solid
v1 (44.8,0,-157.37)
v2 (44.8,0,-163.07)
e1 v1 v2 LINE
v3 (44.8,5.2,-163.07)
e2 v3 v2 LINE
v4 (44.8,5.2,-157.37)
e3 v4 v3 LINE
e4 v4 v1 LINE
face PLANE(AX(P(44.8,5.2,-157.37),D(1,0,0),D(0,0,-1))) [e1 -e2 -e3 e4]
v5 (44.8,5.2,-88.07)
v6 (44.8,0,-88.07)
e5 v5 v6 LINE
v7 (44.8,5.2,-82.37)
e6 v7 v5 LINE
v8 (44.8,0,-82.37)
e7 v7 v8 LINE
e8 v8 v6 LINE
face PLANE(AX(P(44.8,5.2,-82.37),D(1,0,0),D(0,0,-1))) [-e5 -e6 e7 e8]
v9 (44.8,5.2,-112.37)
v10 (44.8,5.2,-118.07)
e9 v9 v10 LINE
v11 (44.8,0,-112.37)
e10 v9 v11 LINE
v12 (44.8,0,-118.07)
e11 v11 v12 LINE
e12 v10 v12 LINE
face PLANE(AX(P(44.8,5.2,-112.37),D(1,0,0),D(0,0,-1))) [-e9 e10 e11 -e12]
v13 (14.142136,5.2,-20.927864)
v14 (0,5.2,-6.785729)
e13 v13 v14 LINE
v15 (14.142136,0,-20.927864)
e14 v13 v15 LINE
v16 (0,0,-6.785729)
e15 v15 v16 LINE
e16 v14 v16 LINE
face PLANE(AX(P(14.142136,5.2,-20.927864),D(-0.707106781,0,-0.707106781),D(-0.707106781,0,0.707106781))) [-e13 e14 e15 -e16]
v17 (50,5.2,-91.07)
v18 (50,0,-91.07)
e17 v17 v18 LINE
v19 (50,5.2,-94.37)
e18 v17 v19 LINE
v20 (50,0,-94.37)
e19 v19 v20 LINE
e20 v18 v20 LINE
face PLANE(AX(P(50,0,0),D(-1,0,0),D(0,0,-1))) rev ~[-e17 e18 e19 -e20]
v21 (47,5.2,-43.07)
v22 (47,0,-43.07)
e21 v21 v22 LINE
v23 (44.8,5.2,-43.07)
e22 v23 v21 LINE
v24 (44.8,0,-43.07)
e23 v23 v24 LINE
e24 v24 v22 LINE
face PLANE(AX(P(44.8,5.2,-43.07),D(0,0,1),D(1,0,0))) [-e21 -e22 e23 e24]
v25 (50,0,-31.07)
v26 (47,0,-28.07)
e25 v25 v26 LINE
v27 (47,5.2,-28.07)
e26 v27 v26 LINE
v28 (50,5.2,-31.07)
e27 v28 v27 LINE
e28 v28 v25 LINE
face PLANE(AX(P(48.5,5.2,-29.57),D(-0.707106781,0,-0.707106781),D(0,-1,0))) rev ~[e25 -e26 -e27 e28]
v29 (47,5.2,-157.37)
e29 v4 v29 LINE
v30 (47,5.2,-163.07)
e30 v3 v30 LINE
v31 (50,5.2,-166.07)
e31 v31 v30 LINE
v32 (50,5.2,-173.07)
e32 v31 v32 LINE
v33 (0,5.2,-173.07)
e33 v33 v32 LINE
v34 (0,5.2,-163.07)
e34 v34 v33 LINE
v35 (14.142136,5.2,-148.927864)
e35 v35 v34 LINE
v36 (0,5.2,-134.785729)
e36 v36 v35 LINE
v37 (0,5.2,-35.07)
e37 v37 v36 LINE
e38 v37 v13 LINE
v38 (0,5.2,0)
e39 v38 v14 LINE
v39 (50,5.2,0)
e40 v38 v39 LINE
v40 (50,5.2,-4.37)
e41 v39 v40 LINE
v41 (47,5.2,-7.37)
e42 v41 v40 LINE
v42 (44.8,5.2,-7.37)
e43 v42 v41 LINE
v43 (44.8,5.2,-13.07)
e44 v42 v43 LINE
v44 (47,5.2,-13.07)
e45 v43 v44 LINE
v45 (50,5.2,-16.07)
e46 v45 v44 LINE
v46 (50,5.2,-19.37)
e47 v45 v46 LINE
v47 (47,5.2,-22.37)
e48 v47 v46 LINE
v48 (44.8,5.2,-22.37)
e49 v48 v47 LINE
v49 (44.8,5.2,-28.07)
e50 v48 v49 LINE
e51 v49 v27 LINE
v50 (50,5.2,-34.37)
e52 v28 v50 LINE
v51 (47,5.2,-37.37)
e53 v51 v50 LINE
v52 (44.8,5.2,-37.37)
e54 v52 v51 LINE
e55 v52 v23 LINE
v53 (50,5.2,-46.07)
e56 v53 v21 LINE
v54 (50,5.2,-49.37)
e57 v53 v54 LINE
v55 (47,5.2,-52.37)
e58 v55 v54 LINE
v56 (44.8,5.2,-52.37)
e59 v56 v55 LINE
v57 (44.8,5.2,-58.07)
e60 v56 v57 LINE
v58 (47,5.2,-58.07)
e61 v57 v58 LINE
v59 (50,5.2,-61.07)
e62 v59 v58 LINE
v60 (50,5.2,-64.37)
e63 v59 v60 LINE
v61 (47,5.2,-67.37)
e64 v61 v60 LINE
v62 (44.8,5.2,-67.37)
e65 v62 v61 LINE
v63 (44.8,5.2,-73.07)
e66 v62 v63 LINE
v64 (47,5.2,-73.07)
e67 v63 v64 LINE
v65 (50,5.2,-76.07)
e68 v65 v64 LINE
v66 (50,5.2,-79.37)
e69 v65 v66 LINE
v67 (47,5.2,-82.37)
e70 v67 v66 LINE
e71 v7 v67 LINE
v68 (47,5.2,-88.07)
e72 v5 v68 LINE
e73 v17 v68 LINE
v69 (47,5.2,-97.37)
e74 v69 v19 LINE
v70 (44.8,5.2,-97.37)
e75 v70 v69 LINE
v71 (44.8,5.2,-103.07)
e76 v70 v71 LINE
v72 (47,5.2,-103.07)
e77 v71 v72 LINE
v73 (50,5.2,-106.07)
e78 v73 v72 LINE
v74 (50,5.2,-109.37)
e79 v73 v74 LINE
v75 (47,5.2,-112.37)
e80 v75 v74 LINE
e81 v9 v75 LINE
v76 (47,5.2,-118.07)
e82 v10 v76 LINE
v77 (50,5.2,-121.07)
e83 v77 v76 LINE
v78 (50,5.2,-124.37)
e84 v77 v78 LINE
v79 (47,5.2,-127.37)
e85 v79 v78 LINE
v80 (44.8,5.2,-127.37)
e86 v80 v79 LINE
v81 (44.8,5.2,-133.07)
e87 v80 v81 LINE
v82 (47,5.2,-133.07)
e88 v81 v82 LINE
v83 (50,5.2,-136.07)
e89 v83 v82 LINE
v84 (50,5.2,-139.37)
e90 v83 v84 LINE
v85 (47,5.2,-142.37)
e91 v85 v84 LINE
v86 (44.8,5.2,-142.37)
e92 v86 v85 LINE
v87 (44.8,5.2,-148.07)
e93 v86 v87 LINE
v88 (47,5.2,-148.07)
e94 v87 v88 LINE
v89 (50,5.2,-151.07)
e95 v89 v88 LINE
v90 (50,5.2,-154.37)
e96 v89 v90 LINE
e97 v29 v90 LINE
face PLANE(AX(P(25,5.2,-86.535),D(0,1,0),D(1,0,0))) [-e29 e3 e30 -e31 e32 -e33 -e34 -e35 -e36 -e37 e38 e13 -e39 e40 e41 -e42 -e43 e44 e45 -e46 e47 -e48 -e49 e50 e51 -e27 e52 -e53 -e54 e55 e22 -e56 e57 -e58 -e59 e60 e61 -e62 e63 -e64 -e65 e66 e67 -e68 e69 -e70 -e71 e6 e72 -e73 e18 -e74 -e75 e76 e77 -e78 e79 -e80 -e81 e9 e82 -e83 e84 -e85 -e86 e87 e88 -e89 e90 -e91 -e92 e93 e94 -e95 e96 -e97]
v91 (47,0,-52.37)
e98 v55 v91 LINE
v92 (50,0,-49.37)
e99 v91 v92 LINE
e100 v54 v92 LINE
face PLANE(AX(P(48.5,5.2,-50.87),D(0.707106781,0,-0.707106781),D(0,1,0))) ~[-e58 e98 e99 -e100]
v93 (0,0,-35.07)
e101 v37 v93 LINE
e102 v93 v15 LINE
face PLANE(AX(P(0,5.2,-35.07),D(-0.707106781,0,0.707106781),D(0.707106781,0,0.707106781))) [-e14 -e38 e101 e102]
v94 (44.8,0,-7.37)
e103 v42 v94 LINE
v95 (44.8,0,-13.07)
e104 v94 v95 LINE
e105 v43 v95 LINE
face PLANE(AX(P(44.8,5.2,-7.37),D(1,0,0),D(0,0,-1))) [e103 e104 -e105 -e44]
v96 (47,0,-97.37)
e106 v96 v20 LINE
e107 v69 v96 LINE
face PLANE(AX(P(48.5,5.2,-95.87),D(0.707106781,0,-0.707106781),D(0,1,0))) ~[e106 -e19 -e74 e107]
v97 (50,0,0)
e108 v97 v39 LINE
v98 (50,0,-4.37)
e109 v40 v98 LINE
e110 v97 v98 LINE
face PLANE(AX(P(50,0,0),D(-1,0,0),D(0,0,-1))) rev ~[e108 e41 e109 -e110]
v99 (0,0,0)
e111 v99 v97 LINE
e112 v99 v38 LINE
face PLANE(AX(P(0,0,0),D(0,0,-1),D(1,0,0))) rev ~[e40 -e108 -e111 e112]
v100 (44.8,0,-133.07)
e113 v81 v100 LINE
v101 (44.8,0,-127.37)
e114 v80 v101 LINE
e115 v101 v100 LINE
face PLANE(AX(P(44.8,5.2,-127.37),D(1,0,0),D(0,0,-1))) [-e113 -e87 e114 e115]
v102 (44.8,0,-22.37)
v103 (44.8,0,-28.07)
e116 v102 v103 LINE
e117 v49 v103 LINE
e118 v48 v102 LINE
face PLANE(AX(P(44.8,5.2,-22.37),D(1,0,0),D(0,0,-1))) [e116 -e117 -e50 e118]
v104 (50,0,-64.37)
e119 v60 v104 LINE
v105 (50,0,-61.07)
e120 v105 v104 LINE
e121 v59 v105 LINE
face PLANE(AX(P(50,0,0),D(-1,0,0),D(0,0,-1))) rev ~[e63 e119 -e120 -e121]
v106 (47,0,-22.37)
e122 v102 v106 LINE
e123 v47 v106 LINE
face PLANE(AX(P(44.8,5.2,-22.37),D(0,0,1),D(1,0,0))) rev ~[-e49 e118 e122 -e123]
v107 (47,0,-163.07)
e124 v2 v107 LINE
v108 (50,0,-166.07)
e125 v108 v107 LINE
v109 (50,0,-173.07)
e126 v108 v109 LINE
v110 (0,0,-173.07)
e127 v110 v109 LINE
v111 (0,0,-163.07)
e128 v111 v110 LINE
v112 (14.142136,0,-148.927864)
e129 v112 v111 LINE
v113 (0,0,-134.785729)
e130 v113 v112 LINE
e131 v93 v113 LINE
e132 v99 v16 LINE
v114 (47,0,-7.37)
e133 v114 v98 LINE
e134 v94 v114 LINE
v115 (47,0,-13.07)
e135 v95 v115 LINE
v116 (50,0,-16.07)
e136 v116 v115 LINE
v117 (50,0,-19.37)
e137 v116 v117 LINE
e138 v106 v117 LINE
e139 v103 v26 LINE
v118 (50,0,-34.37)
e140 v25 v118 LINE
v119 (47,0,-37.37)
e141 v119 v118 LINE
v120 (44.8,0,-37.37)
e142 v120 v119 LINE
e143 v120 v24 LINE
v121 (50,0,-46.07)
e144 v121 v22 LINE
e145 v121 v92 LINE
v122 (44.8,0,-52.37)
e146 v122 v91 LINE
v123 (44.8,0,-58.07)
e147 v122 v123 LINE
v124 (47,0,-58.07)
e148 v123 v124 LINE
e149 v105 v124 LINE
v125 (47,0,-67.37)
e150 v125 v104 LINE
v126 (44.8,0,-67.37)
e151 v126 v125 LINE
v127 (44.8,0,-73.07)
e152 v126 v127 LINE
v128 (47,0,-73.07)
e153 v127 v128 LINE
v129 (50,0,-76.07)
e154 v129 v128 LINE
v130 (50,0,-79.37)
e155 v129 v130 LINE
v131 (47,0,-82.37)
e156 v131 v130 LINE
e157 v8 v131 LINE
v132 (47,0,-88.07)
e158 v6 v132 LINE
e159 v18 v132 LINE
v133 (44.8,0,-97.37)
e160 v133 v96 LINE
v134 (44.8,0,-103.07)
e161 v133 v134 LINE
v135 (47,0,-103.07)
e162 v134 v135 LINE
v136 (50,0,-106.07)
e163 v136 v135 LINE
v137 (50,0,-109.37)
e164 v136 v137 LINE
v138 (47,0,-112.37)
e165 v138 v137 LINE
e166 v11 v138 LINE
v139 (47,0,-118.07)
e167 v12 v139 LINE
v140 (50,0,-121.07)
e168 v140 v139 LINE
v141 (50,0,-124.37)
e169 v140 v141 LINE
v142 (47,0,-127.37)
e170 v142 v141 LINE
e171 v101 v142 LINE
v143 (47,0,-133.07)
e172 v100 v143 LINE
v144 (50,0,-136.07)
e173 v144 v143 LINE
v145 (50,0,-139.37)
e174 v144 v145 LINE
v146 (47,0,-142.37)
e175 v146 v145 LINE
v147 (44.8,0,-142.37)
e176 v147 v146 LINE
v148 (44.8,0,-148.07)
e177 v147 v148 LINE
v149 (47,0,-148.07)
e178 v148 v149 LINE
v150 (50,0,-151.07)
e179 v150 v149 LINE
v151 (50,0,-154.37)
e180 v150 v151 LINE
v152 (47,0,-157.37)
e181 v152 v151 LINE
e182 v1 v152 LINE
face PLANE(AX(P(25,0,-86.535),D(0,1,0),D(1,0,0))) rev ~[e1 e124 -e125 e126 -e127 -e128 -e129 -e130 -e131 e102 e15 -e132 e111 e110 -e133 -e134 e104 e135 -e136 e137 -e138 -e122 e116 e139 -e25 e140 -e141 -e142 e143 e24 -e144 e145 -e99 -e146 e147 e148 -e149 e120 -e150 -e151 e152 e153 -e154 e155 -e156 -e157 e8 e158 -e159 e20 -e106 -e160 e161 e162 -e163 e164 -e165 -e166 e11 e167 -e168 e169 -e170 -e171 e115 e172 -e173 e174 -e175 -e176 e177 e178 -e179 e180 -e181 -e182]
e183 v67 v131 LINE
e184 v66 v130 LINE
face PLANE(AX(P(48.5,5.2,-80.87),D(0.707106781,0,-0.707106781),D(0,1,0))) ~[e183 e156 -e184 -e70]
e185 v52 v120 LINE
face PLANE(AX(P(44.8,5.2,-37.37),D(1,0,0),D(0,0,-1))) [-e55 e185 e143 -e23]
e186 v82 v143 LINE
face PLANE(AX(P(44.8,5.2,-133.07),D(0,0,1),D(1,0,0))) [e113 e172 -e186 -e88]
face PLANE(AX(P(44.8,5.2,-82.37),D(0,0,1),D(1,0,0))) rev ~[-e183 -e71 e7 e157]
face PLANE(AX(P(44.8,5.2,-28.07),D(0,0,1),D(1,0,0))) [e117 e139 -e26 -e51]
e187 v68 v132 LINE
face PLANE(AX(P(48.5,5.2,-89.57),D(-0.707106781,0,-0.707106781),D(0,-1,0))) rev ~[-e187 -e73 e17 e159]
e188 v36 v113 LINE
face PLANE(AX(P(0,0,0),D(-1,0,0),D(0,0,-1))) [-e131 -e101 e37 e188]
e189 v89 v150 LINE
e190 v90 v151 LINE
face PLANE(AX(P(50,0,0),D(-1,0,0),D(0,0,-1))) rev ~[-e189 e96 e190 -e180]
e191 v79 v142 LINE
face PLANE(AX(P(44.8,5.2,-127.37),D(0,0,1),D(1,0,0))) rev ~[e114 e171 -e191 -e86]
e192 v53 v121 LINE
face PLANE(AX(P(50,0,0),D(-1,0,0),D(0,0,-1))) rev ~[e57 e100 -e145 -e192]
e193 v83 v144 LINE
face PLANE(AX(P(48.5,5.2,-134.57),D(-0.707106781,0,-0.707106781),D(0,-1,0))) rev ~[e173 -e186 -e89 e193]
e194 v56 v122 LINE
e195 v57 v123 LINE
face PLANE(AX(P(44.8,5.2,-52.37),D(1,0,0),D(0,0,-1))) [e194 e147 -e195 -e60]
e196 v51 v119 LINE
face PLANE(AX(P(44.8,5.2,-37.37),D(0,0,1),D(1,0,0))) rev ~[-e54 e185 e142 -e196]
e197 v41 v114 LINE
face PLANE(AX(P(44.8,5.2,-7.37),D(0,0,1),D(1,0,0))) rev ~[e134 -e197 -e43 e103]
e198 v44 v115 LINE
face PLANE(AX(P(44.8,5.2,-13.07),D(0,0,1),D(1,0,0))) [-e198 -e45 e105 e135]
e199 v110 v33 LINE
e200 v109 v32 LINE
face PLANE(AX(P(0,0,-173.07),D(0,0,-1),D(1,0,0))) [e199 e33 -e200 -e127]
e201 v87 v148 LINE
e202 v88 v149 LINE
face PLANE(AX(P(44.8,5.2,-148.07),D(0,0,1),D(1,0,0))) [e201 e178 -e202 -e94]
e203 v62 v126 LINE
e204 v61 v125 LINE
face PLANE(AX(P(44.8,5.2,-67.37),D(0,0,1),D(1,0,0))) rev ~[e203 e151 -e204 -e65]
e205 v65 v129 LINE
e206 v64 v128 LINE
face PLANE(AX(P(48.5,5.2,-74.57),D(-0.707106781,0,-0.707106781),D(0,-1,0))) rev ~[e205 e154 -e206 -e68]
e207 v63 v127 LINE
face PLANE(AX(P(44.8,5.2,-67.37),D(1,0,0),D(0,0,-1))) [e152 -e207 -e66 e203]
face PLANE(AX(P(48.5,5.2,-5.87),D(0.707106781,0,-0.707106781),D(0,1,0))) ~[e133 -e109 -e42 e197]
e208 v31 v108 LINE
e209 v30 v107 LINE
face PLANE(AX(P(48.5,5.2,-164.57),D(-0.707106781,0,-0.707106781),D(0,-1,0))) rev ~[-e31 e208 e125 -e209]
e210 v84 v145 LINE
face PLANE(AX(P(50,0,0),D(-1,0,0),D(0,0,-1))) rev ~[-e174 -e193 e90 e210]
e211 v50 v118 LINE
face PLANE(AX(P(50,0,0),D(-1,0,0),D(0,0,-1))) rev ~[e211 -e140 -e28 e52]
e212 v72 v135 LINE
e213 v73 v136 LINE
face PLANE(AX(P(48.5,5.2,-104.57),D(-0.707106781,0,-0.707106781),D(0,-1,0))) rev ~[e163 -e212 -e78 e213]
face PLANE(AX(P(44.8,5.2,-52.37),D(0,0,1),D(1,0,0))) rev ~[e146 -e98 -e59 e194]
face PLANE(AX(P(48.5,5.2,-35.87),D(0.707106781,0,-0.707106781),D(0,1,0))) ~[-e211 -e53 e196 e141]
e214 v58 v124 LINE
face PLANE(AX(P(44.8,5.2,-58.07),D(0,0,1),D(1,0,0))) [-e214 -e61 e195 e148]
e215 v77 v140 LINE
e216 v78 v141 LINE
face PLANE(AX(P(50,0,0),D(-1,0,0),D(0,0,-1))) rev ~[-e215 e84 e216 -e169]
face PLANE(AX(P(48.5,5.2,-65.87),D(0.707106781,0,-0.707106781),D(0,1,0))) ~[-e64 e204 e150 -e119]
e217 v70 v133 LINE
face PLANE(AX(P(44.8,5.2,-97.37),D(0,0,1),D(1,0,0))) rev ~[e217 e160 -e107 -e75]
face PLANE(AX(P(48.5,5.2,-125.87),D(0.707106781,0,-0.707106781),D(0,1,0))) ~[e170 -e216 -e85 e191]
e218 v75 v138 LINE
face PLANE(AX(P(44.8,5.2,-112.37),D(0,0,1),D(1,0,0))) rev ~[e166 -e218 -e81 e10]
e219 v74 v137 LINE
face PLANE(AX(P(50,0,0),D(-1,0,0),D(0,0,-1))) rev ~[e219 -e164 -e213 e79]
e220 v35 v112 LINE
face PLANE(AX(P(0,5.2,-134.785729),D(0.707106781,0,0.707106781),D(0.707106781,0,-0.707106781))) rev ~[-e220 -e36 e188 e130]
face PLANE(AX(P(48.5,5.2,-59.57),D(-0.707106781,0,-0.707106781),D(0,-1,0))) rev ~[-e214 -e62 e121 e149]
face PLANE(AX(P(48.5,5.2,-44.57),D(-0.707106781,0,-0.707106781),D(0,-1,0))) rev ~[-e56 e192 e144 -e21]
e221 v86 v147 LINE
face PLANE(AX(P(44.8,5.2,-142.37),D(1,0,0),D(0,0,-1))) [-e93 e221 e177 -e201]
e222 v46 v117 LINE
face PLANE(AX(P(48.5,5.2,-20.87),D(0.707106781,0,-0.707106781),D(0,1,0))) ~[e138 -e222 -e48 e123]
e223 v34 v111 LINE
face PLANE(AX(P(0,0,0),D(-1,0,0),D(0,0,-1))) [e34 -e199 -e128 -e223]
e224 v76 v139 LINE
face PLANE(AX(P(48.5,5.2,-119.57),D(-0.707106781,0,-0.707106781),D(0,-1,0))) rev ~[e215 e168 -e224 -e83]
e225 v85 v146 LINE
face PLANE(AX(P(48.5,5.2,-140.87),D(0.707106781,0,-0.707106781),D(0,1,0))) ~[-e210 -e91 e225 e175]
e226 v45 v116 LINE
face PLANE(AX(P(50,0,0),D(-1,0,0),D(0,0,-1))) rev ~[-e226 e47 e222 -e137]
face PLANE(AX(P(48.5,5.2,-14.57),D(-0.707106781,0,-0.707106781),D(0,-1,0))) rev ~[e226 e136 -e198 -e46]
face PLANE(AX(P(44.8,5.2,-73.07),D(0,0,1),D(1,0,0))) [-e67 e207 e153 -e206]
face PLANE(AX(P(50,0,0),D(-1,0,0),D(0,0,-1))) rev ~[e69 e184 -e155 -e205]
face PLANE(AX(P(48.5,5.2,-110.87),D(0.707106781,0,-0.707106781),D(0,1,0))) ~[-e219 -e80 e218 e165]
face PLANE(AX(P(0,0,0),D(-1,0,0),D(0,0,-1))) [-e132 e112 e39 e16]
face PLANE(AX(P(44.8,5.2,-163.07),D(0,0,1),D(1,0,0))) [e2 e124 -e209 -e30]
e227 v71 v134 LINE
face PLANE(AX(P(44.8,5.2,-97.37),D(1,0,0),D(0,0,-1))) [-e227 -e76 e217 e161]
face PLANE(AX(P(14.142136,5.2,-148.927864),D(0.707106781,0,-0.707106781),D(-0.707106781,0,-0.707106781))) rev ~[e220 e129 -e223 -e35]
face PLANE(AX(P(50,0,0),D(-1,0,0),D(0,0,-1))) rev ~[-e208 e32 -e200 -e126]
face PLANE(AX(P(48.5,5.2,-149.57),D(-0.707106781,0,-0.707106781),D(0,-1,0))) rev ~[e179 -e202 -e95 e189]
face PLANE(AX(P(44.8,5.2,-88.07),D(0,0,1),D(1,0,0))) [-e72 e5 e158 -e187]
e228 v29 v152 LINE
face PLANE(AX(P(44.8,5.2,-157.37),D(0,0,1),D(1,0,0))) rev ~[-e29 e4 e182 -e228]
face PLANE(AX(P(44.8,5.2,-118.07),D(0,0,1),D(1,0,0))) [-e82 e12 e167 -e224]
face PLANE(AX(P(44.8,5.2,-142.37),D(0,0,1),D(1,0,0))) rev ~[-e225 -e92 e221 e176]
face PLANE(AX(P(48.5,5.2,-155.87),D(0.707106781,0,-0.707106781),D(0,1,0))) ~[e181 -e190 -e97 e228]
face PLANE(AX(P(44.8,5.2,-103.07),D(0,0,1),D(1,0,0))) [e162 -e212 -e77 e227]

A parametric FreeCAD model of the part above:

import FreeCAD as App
import Part
import Sketcher


def edges_at(feature, points):
    """Names of the edges that pass closest to the given points."""
    edges = feature.Shape.Edges
    near = lambda p: min(range(len(edges)), key=lambda i: edges[i].distToShape(Part.Vertex(*p))[0])
    return sorted({f"Edge{near(p) + 1}" for p in points})


def add_polygon(sketch, points):
    """Adds a closed chain of lines whose ends are joined by coincident constraints."""
    first, n = sketch.GeometryCount, len(points)
    for a, b in zip(points, points[1:] + points[:1]):
        sketch.addGeometry(Part.LineSegment(App.Vector(*a, 0), App.Vector(*b, 0)), False)
    for i in range(n):
        sketch.addConstraint(Sketcher.Constraint("Coincident", first + i, 2, first + (i + 1) % n, 1))

doc = App.newDocument("Part")
params = doc.addObject("Spreadsheet::Sheet", "Params")
for row, (alias, value) in enumerate([
    ("sketch1_width", "50 mm"),
    ("sketch1_height", "173.07 mm"),
    ("pad1_length", "5.2 mm"),
    ("sketch2_length", "20 mm"),
    ("pocket1_length", "6 mm"),
    ("sketch3_width", "5.2 mm"),
    ("sketch3_height", "5.7 mm"),
    ("pocket2_length", "6 mm"),
    ("chamfer_size", "3 mm"),
    ("linearpattern_pitch", "15 mm"),
    ("chamfer2_size", "3 mm"),
], start=1):
    params.set(f"A{row}", alias)
    params.set(f"B{row}", "=" + value)
    params.setAlias(f"B{row}", alias)

body = doc.addObject("PartDesign::Body", "Body")

sketch1 = doc.addObject("Sketcher::SketchObject", "Sketch")
body.addObject(sketch1)
sketch1.AttachmentSupport = (doc.XZ_Plane, [""])
sketch1.MapMode = "FlatFace"
add_polygon(sketch1, [(0, -173), (0, 0), (50, 0), (50, -173)])
sketch1.addConstraint([
    Sketcher.Constraint("Vertical", 0),
    Sketcher.Constraint("Horizontal", 1),
    Sketcher.Constraint("Vertical", 2),
    Sketcher.Constraint("Horizontal", 3),
    Sketcher.Constraint("Coincident", 0, 2, -1, 1),
    Sketcher.Constraint("DistanceX", 1, 1, 1, 2, 50.0),
    Sketcher.Constraint("DistanceY", 0, 1, 0, 2, 173.07),
])
sketch1.setExpression("Constraints[9]", "Params.sketch1_width")
sketch1.setExpression("Constraints[10]", "Params.sketch1_height")
pad1 = doc.addObject("PartDesign::Pad", "Pad")
body.addObject(pad1)
pad1.Profile = sketch1
pad1.setExpression("Length", "Params.pad1_length")
pad1.Reversed = True

sketch2 = doc.addObject("Sketcher::SketchObject", "Sketch001")
body.addObject(sketch2)
sketch2.AttachmentSupport = (doc.XZ_Plane, [""])
sketch2.MapMode = "FlatFace"
sketch2.AttachmentOffset = App.Placement(App.Vector(0, 0, -5.2), App.Rotation())
add_polygon(sketch2, [(0, -135), (14, -149), (0, -163)])
add_polygon(sketch2, [(0, -7), (14, -21), (0, -35)])
sketch2.addConstraint([
    Sketcher.Constraint("Vertical", 2),
    Sketcher.Constraint("Vertical", 5),
    Sketcher.Constraint("PointOnObject", 1, 2, -2),
    Sketcher.Constraint("PointOnObject", 4, 2, -2),
    Sketcher.Constraint("Perpendicular", 0, 1),
    Sketcher.Constraint("Perpendicular", 1, 3),
    Sketcher.Constraint("Perpendicular", 3, 4),
    Sketcher.Constraint("Vertical", 0, 2, 3, 2),
    Sketcher.Constraint("Equal", 0, 1),
    Sketcher.Constraint("Distance", 0, 20.0),
    Sketcher.Constraint("DistanceY", 0, 2, 3, 2, 128.0),
    Sketcher.Constraint("DistanceY", 1, 2, -1, 1, 163.07),
])
sketch2.setExpression("Constraints[15]", "Params.sketch2_length")
pocket1 = doc.addObject("PartDesign::Pocket", "Pocket")
body.addObject(pocket1)
pocket1.Profile = sketch2
pocket1.setExpression("Length", "Params.pocket1_length")
pocket1.Reversed = True

sketch3 = doc.addObject("Sketcher::SketchObject", "Sketch002")
body.addObject(sketch3)
sketch3.AttachmentSupport = (doc.XZ_Plane, [""])
sketch3.MapMode = "FlatFace"
sketch3.AttachmentOffset = App.Placement(App.Vector(0, 0, -5.2), App.Rotation())
add_polygon(sketch3, [(45, -163), (45, -157), (50, -157), (50, -163)])
sketch3.addConstraint([
    Sketcher.Constraint("Vertical", 0),
    Sketcher.Constraint("Horizontal", 1),
    Sketcher.Constraint("Vertical", 2),
    Sketcher.Constraint("Horizontal", 3),
    Sketcher.Constraint("DistanceX", 1, 1, 1, 2, 5.2),
    Sketcher.Constraint("DistanceY", 0, 1, 0, 2, 5.7),
    Sketcher.Constraint("DistanceX", -1, 1, 1, 2, 50.0),
    Sketcher.Constraint("DistanceY", 0, 2, -1, 1, 157.37),
])
sketch3.setExpression("Constraints[8]", "Params.sketch3_width")
sketch3.setExpression("Constraints[9]", "Params.sketch3_height")
pocket2 = doc.addObject("PartDesign::Pocket", "Pocket001")
body.addObject(pocket2)
pocket2.Profile = sketch3
pocket2.setExpression("Length", "Params.pocket2_length")
pocket2.Reversed = True
doc.recompute()

chamfer = doc.addObject("PartDesign::Chamfer", "Chamfer")
body.addObject(chamfer)
chamfer.Base = (pocket2, edges_at(pocket2, [(50, 2.6, -163.07), (50, 2.6, -157.37)]))
chamfer.setExpression("Size", "Params.chamfer_size")
doc.recompute()

linearpattern = doc.addObject("PartDesign::LinearPattern", "LinearPattern")
body.addObject(linearpattern)
linearpattern.Originals = [pocket2]
linearpattern.Direction = (doc.Z_Axis, [""])
linearpattern.Mode = "offset"
linearpattern.setExpression("Offset", "Params.linearpattern_pitch")
linearpattern.Occurrences = 11
body.Tip = linearpattern
doc.recompute()

chamfer2 = doc.addObject("PartDesign::Chamfer", "Chamfer001")
body.addObject(chamfer2)
chamfer2.Base = (linearpattern, edges_at(linearpattern, [
    (50, 2.6, -148.07),
    (50, 2.6, -142.37),
    (50, 2.6, -133.07),
    (50, 2.6, -127.37),
    (50, 2.6, -118.07),
    (50, 2.6, -112.37),
    (50, 2.6, -103.07),
    (50, 2.6, -97.37),
    (50, 2.6, -88.07),
    (50, 2.6, -82.37),
    (50, 2.6, -73.07),
    (50, 2.6, -67.37),
    (50, 2.6, -58.07),
    (50, 2.6, -52.37),
    (50, 2.6, -43.07),
    (50, 2.6, -37.37),
    (50, 2.6, -28.07),
    (50, 2.6, -22.37),
    (50, 2.6, -13.07),
    (50, 2.6, -7.37),
]))
chamfer2.setExpression("Size", "Params.chamfer2_size")

doc.recompute()
